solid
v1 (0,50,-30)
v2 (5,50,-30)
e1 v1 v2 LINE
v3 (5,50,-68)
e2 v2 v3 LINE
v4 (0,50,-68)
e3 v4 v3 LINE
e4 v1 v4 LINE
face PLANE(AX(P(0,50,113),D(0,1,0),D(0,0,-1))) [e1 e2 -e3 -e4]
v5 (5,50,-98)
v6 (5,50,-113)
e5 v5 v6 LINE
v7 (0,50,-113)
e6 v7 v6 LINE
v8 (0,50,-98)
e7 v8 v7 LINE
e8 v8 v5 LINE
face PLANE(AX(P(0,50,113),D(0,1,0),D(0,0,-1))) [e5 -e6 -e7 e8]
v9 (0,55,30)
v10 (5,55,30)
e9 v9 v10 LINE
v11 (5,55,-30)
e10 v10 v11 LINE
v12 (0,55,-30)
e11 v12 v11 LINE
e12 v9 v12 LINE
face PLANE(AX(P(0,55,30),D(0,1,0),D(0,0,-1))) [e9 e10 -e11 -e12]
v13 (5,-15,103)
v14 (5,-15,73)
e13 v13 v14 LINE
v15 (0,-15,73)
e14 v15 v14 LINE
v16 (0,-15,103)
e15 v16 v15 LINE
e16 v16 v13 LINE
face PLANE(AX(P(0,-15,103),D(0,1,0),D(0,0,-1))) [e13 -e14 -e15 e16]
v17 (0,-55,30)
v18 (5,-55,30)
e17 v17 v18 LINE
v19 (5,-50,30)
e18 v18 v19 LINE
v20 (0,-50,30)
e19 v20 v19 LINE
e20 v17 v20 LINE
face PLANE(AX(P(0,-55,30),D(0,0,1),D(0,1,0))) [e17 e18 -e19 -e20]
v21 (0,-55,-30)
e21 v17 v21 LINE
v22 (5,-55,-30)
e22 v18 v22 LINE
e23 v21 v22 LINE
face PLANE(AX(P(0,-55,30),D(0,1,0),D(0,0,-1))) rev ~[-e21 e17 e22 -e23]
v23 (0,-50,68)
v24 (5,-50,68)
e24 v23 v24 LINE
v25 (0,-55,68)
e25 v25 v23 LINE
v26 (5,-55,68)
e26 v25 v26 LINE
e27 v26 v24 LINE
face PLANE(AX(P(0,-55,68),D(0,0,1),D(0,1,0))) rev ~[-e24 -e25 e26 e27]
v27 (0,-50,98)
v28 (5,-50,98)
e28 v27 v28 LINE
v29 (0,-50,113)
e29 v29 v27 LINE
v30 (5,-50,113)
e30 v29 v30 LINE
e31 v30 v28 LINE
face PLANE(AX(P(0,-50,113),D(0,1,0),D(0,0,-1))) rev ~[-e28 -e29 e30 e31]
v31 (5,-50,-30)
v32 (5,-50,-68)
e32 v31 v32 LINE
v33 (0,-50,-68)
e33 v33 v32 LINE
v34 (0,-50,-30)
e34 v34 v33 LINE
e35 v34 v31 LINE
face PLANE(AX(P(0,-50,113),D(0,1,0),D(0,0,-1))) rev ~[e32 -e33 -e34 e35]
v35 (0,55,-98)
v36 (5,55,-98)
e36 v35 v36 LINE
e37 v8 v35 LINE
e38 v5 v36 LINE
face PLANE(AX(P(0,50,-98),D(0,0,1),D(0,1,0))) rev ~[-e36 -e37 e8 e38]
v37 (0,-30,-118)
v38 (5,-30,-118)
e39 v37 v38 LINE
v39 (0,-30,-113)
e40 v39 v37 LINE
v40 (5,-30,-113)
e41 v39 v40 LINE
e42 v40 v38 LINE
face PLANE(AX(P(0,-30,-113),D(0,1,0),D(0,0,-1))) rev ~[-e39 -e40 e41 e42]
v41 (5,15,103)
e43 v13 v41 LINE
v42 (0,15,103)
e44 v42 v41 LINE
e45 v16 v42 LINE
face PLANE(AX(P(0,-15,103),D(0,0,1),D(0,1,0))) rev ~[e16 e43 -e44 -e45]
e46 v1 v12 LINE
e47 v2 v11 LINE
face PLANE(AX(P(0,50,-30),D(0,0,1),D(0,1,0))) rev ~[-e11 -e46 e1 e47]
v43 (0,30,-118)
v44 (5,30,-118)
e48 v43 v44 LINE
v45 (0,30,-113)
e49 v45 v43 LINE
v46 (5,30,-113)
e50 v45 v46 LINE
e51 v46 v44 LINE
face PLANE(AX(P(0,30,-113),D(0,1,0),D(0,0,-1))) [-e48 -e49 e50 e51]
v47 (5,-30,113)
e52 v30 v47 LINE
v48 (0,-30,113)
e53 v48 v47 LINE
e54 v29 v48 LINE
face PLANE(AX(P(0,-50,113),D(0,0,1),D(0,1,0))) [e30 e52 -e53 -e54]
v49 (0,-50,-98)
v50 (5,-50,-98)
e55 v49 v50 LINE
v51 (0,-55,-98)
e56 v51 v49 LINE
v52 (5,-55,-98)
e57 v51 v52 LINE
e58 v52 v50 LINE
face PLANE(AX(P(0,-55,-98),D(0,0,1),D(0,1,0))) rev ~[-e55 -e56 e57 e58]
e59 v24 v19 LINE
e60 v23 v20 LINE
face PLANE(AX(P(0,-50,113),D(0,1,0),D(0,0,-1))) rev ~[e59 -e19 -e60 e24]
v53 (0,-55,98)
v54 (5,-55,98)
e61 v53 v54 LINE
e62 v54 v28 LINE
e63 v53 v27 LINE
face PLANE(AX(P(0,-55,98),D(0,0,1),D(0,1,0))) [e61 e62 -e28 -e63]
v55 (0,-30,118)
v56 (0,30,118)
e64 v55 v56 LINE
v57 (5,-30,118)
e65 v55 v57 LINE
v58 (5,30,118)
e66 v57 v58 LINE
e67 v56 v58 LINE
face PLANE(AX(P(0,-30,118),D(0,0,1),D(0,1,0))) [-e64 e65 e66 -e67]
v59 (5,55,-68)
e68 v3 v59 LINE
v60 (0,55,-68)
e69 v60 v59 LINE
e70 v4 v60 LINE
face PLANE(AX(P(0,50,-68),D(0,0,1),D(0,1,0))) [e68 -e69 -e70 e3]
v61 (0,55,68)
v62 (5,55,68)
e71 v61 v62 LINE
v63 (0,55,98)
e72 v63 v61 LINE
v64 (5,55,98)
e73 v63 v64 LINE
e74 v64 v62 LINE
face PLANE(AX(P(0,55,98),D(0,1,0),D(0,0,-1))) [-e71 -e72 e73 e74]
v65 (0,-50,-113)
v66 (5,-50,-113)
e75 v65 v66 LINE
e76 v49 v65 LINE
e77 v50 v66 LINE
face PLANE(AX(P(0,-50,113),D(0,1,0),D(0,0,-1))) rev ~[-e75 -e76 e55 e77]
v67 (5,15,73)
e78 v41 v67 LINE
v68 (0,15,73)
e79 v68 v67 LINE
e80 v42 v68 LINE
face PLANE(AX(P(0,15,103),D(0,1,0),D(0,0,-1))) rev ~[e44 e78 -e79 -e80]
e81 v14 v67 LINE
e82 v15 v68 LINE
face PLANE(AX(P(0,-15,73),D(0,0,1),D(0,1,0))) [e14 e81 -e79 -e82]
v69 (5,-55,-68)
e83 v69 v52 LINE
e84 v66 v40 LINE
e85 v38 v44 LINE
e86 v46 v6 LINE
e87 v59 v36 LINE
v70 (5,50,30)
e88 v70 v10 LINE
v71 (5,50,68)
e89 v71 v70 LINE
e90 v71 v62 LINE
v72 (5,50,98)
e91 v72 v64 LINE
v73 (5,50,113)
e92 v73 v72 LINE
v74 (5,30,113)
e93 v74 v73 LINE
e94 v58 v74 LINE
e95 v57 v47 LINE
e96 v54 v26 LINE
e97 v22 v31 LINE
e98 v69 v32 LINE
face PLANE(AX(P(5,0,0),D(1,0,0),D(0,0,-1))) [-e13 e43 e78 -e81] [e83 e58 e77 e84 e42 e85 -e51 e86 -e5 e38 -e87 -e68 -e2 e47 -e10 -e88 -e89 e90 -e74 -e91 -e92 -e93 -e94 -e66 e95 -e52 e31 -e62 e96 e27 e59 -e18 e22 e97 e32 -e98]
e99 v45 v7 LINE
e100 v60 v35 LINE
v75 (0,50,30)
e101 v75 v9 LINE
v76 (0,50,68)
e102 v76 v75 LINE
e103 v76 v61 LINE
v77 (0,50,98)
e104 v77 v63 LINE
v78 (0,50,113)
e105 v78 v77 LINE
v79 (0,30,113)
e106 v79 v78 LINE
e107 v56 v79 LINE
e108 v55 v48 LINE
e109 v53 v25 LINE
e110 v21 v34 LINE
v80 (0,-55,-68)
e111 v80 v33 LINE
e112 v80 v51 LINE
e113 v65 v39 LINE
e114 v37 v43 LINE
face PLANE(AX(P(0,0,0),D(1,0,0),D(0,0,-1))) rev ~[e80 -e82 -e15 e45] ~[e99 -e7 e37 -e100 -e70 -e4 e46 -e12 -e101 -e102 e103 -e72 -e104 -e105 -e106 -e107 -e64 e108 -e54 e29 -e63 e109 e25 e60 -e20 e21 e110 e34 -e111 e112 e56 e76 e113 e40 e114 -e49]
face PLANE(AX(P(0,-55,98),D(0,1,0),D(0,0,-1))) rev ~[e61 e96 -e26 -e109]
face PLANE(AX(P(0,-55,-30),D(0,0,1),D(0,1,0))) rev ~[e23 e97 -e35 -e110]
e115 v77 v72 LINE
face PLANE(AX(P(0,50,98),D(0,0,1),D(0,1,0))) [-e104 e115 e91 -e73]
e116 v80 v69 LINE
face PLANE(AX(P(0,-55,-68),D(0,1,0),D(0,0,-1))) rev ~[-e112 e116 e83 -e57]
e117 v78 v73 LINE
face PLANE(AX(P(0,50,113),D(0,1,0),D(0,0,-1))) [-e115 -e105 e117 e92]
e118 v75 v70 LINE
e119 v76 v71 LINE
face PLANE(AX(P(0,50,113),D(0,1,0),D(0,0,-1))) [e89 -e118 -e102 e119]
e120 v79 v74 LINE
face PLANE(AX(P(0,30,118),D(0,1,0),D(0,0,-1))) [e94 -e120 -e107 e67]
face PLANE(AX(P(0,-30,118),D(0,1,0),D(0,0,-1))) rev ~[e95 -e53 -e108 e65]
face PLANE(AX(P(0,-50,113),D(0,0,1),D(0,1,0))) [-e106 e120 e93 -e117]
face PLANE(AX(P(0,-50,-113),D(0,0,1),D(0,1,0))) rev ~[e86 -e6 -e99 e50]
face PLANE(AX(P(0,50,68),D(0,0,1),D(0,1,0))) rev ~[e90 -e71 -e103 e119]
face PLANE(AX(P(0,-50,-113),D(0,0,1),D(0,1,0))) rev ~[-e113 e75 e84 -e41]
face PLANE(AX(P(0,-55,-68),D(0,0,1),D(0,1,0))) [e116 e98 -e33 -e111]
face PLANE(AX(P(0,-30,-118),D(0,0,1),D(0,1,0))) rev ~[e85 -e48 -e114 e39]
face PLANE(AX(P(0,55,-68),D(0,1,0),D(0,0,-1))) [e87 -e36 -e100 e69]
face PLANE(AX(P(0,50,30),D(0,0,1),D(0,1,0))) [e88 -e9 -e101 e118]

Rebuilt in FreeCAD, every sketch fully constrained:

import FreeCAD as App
import Part
import Sketcher
from FreeCAD import Vector
Q = App.Units.Quantity


def add_polygon(sketch, points):
    """Adds a closed chain of lines whose ends are joined by coincident constraints."""
    first, n = sketch.GeometryCount, len(points)
    for a, b in zip(points, points[1:] + points[:1]):
        sketch.addGeometry(Part.LineSegment(App.Vector(*a, 0), App.Vector(*b, 0)), False)
    for i in range(n):
        sketch.addConstraint(Sketcher.Constraint("Coincident", first + i, 2, first + (i + 1) % n, 1))

doc = App.newDocument("Part")
body = doc.addObject("PartDesign::Body", "Body")

# Sketch on YZ plane
sketch1 = body.newObject("Sketcher::SketchObject", "Sketch")
sketch1.AttachmentSupport = (doc.getObject("YZ_Plane"), [""])
sketch1.MapMode = "FlatFace"
add_polygon(sketch1, [(-30, 113), (-50, 113), (-50, 98), (-55, 98), (-55, 68), (-50, 68), (-50, 30), (-55, 30), (-55, -30), (-50, -30), (-50, -68), (-55, -68), (-55, -98), (-50, -98), (-50, -113), (-30, -113), (-30, -118), (30, -118), (30, -113), (50, -113), (50, -98), (55, -98), (55, -68), (50, -68), (50, -30), (55, -30), (55, 30), (50, 30), (50, 68), (55, 68), (55, 98), (50, 98), (50, 113), (30, 113), (30, 118), (-30, 118)])  # lines 0-35
add_polygon(sketch1, [(-15, 73), (-15, 103), (15, 103), (15, 73)])  # lines 36-39
sketch1.addConstraint(Sketcher.Constraint("Horizontal", 0))
sketch1.addConstraint(Sketcher.Constraint("Vertical", 1))
sketch1.addConstraint(Sketcher.Constraint("Horizontal", 2))
sketch1.addConstraint(Sketcher.Constraint("Vertical", 3))
sketch1.addConstraint(Sketcher.Constraint("Horizontal", 4))
sketch1.addConstraint(Sketcher.Constraint("Vertical", 5))
sketch1.addConstraint(Sketcher.Constraint("Horizontal", 6))
sketch1.addConstraint(Sketcher.Constraint("Vertical", 7))
sketch1.addConstraint(Sketcher.Constraint("Horizontal", 8))
sketch1.addConstraint(Sketcher.Constraint("Vertical", 9))
sketch1.addConstraint(Sketcher.Constraint("Horizontal", 10))
sketch1.addConstraint(Sketcher.Constraint("Vertical", 11))
sketch1.addConstraint(Sketcher.Constraint("Horizontal", 12))
sketch1.addConstraint(Sketcher.Constraint("Vertical", 13))
sketch1.addConstraint(Sketcher.Constraint("Horizontal", 14))
sketch1.addConstraint(Sketcher.Constraint("Vertical", 15))
sketch1.addConstraint(Sketcher.Constraint("Horizontal", 16))
sketch1.addConstraint(Sketcher.Constraint("Vertical", 17))
sketch1.addConstraint(Sketcher.Constraint("Horizontal", 18))
sketch1.addConstraint(Sketcher.Constraint("Vertical", 19))
sketch1.addConstraint(Sketcher.Constraint("Horizontal", 20))
sketch1.addConstraint(Sketcher.Constraint("Vertical", 21))
sketch1.addConstraint(Sketcher.Constraint("Horizontal", 22))
sketch1.addConstraint(Sketcher.Constraint("Vertical", 23))
sketch1.addConstraint(Sketcher.Constraint("Horizontal", 24))
sketch1.addConstraint(Sketcher.Constraint("Vertical", 25))
sketch1.addConstraint(Sketcher.Constraint("Horizontal", 26))
sketch1.addConstraint(Sketcher.Constraint("Vertical", 27))
sketch1.addConstraint(Sketcher.Constraint("Horizontal", 28))
sketch1.addConstraint(Sketcher.Constraint("Vertical", 29))
sketch1.addConstraint(Sketcher.Constraint("Horizontal", 30))
sketch1.addConstraint(Sketcher.Constraint("Vertical", 31))
sketch1.addConstraint(Sketcher.Constraint("Horizontal", 32))
sketch1.addConstraint(Sketcher.Constraint("Vertical", 33))
sketch1.addConstraint(Sketcher.Constraint("Horizontal", 34))
sketch1.addConstraint(Sketcher.Constraint("Vertical", 35))
sketch1.addConstraint(Sketcher.Constraint("Vertical", 36))
sketch1.addConstraint(Sketcher.Constraint("Horizontal", 37))
sketch1.addConstraint(Sketcher.Constraint("Vertical", 38))
sketch1.addConstraint(Sketcher.Constraint("Horizontal", 39))
sketch1.addConstraint(Sketcher.Constraint("Symmetric", 0, 2, 18, 2, -1, 1))
sketch1.addConstraint(Sketcher.Constraint("Symmetric", 2, 2, 20, 2, -1, 1))
sketch1.addConstraint(Sketcher.Constraint("Symmetric", 4, 2, 22, 2, -1, 1))
sketch1.addConstraint(Sketcher.Constraint("Symmetric", 6, 2, 24, 2, -1, 1))
sketch1.addConstraint(Sketcher.Constraint("Symmetric", 8, 2, 26, 2, -1, 1))
sketch1.addConstraint(Sketcher.Constraint("Symmetric", 10, 2, 28, 2, -1, 1))
sketch1.addConstraint(Sketcher.Constraint("Symmetric", 12, 2, 30, 2, -1, 1))
sketch1.addConstraint(Sketcher.Constraint("Symmetric", 14, 2, 32, 2, -1, 1))
sketch1.addConstraint(Sketcher.Constraint("Symmetric", 16, 2, 34, 2, -1, 1))
sketch1.addConstraint(Sketcher.Constraint("Symmetric", 14, 2, 17, 2, -2))
sketch1.addConstraint(Sketcher.Constraint("Symmetric", 12, 2, 19, 2, -2))
sketch1.addConstraint(Sketcher.Constraint("Symmetric", 10, 2, 21, 2, -2))
sketch1.addConstraint(Sketcher.Constraint("Symmetric", 8, 2, 23, 2, -2))
sketch1.addConstraint(Sketcher.Constraint("Vertical", 1, 2, 4, 2))
sketch1.addConstraint(Sketcher.Constraint("Vertical", 3, 2, 6, 2))
sketch1.addConstraint(Sketcher.Constraint("Equal", 39, 3))
sketch1.addConstraint(Sketcher.Constraint("Equal", 34, 7))
sketch1.addConstraint(Sketcher.Constraint("Equal", 30, 15))
sketch1.addConstraint(Sketcher.Constraint("Equal", 29, 36))
sketch1.addConstraint(Sketcher.Constraint("DistanceX", 0, 2, 0, 1, Q("20 mm")))
sketch1.addConstraint(Sketcher.Constraint("DistanceX", 2, 2, 2, 1, Q("5 mm")))
sketch1.addConstraint(Sketcher.Constraint("DistanceX", 16, 1, 16, 2, Q("60 mm")))
sketch1.addConstraint(Sketcher.Constraint("DistanceX", 37, 1, 37, 2, Q("30 mm")))
sketch1.addConstraint(Sketcher.Constraint("DistanceY", 1, 2, 1, 1, Q("15 mm")))
sketch1.addConstraint(Sketcher.Constraint("DistanceY", 5, 2, 5, 1, Q("38 mm")))
sketch1.addConstraint(Sketcher.Constraint("DistanceX", 36, 2, -1, 1, Q("15 mm")))
sketch1.addConstraint(Sketcher.Constraint("DistanceY", -1, 1, 36, 2, Q("103 mm")))
pad1 = body.newObject("PartDesign::Pad", "Pad")
pad1.Profile = sketch1
pad1.Length = 5

doc.recompute()
